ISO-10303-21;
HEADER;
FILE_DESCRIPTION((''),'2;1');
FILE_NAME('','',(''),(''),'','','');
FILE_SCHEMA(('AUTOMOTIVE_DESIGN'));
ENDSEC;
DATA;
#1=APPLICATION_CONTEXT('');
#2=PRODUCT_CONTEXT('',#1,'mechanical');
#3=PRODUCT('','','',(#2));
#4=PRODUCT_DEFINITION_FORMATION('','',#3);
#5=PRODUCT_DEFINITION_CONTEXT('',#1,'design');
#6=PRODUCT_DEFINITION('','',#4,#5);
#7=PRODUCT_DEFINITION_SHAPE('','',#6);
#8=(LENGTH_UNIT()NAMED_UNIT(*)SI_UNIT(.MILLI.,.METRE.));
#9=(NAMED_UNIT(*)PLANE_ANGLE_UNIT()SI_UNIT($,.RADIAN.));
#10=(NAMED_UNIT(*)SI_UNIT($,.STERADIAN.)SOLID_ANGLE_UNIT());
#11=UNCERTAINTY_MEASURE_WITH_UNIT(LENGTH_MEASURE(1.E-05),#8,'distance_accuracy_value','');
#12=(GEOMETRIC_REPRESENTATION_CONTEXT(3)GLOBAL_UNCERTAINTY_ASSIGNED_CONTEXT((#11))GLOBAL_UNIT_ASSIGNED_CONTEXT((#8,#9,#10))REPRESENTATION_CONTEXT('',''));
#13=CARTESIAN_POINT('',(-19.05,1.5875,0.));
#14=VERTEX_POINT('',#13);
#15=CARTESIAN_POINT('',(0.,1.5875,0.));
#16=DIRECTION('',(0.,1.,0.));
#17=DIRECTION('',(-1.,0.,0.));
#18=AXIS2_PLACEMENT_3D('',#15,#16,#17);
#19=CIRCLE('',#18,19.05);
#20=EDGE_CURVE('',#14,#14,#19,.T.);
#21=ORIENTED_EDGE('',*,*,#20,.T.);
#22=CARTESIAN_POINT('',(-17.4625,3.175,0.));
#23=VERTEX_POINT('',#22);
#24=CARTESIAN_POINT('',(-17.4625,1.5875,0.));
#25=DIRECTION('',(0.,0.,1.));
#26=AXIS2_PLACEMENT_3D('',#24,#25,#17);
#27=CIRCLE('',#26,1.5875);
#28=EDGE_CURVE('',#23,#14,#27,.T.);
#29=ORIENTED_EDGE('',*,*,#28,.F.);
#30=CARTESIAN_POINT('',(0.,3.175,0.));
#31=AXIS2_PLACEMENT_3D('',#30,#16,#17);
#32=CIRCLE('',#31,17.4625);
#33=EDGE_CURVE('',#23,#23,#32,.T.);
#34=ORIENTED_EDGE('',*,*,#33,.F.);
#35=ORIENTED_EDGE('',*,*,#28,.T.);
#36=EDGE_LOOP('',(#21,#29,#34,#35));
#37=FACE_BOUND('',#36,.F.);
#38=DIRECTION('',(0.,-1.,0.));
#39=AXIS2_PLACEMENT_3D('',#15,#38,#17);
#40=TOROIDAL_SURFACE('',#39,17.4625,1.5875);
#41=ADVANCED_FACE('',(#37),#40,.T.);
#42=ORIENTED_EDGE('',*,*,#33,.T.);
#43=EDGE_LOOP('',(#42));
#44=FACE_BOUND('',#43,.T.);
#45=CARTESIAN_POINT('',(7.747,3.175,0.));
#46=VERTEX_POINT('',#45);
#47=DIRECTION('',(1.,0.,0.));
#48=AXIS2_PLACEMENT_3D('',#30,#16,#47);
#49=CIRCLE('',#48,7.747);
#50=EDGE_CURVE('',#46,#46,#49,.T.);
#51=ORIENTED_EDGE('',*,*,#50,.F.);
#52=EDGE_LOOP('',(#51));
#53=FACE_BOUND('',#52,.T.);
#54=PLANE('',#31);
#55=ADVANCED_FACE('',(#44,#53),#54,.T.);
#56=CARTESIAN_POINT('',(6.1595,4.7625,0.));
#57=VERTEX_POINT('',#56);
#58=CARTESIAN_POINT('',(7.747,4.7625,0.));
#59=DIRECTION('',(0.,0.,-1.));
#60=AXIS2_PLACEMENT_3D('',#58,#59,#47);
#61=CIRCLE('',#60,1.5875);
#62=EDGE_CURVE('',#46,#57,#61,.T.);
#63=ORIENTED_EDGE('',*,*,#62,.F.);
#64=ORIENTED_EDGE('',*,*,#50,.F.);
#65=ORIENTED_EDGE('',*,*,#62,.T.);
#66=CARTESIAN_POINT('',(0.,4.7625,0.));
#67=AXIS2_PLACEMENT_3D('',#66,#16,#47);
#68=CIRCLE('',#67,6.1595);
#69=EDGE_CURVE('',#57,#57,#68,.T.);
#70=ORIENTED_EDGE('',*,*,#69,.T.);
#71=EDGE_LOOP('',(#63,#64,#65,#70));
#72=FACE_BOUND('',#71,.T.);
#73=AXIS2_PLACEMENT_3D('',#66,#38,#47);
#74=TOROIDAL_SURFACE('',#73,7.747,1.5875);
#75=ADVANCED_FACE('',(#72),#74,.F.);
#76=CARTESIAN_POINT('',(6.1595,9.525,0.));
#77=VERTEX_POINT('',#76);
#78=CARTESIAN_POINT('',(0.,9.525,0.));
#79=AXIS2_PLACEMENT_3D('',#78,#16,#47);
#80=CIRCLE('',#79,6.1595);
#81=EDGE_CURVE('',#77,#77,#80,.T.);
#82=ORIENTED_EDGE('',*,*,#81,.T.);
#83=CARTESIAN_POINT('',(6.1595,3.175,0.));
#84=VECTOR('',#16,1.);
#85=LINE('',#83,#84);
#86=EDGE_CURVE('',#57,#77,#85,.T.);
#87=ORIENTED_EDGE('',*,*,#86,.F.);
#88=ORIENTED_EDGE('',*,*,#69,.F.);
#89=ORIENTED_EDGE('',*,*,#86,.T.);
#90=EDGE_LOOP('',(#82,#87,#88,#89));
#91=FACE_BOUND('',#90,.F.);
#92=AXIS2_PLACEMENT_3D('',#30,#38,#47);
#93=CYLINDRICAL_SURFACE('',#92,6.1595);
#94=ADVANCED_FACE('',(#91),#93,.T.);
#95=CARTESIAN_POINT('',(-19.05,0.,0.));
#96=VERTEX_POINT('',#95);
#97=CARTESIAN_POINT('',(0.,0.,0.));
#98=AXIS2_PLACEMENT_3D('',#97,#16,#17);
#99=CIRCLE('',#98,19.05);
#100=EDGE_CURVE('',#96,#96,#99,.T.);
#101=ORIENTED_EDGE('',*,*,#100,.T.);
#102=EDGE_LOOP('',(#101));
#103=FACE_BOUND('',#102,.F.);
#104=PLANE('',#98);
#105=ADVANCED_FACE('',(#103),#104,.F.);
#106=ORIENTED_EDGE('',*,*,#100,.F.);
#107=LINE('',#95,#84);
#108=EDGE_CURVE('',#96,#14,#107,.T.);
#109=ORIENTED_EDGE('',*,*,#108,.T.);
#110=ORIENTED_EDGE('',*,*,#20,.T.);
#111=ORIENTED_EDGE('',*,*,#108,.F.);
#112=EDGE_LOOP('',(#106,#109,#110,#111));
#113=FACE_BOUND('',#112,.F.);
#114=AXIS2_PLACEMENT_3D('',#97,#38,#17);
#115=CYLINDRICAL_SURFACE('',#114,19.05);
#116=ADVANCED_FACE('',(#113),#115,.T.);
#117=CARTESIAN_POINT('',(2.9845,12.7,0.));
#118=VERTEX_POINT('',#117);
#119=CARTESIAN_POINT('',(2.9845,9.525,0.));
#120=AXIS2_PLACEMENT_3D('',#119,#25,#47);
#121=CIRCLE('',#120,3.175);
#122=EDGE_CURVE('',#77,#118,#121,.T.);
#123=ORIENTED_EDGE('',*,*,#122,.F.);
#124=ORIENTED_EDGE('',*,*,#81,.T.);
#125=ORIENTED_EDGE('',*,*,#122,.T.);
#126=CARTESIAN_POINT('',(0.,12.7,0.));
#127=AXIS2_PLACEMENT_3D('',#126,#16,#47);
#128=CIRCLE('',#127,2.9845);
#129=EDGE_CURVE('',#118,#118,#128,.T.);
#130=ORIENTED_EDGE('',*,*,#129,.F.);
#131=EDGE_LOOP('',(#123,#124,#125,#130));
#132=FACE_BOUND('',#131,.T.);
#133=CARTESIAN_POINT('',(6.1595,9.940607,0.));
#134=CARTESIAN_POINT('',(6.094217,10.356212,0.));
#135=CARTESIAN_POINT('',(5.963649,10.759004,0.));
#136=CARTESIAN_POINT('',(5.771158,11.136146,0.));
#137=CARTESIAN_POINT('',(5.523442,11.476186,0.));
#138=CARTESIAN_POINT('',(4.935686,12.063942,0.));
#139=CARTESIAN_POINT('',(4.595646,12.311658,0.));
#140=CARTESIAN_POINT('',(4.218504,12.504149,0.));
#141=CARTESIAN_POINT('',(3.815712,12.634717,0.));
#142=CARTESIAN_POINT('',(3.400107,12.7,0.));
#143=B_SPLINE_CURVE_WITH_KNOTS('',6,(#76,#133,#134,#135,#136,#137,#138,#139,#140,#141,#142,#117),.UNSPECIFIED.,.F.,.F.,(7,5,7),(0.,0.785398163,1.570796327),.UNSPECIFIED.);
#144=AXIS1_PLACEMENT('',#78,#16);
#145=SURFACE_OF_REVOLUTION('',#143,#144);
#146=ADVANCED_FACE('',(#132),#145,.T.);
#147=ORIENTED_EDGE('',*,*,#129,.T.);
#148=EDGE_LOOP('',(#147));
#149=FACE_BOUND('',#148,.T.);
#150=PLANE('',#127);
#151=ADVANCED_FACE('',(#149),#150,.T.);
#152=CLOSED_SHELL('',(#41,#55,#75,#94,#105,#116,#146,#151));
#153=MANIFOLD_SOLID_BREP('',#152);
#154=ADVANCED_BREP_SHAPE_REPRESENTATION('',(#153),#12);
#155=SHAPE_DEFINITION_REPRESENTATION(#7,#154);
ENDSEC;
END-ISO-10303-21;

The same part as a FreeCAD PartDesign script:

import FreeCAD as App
import Part
import Sketcher

V = App.Vector
Q = App.Units.Quantity


def edges_at(feature, points):
    """Names of the edges that pass closest to the given points."""
    edges = feature.Shape.Edges
    near = lambda p: min(range(len(edges)), key=lambda i: edges[i].distToShape(Part.Vertex(*p))[0])
    return sorted({f"Edge{near(p) + 1}" for p in points})

doc = App.newDocument("Part")
body = doc.addObject("PartDesign::Body", "Body")

sketch1 = body.newObject("Sketcher::SketchObject", "Sketch")
sketch1.AttachmentSupport = (doc.getObject("XZ_Plane"), [""])
sketch1.MapMode = "FlatFace"
sketch1.addGeometry(Part.Circle(V(0, 0, 0), V(0, 0, 1), 19), False)
sketch1.addConstraint([
    Sketcher.Constraint("Coincident", 0, 3, -1, 1),
    Sketcher.Constraint("Diameter", 0, Q("1.5 in")),
])
pad1 = body.newObject("PartDesign::Pad", "Pad")
pad1.Profile = sketch1
pad1.Length = Q("0.125 in")
pad1.Reversed = True

sketch2 = body.newObject("Sketcher::SketchObject", "Sketch001")
sketch2.AttachmentSupport = (doc.getObject("XZ_Plane"), [""])
sketch2.MapMode = "FlatFace"
sketch2.AttachmentOffset = App.Placement(V(0, 0, -0.125 * 25.4), App.Rotation())
sketch2.addGeometry(Part.Circle(V(0, 0, 0), V(0, 0, 1), 6), False)
sketch2.addConstraint([
    Sketcher.Constraint("Coincident", 0, 3, -1, 1),
    Sketcher.Constraint("Diameter", 0, Q("0.485 in")),
])
pad2 = body.newObject("PartDesign::Pad", "Pad001")
pad2.Profile = sketch2
pad2.Length = Q("0.375 in")
pad2.Reversed = True
doc.recompute()

fillet = body.newObject("PartDesign::Fillet", "Fillet")
fillet.Base = (pad2, edges_at(pad2, [(-6.16, 3.175, 0)]))
fillet.Radius = Q("0.0625 in")
doc.recompute()

fillet2 = body.newObject("PartDesign::Fillet", "Fillet001")
fillet2.Base = (fillet, edges_at(fillet, [(-6.16, 12.7, 0)]))
fillet2.Radius = Q("0.125 in")
doc.recompute()

fillet3 = body.newObject("PartDesign::Fillet", "Fillet002")
fillet3.Base = (fillet2, edges_at(fillet2, [(19.05, 3.175, 0)]))
fillet3.Radius = Q("0.0625 in")

doc.recompute()
